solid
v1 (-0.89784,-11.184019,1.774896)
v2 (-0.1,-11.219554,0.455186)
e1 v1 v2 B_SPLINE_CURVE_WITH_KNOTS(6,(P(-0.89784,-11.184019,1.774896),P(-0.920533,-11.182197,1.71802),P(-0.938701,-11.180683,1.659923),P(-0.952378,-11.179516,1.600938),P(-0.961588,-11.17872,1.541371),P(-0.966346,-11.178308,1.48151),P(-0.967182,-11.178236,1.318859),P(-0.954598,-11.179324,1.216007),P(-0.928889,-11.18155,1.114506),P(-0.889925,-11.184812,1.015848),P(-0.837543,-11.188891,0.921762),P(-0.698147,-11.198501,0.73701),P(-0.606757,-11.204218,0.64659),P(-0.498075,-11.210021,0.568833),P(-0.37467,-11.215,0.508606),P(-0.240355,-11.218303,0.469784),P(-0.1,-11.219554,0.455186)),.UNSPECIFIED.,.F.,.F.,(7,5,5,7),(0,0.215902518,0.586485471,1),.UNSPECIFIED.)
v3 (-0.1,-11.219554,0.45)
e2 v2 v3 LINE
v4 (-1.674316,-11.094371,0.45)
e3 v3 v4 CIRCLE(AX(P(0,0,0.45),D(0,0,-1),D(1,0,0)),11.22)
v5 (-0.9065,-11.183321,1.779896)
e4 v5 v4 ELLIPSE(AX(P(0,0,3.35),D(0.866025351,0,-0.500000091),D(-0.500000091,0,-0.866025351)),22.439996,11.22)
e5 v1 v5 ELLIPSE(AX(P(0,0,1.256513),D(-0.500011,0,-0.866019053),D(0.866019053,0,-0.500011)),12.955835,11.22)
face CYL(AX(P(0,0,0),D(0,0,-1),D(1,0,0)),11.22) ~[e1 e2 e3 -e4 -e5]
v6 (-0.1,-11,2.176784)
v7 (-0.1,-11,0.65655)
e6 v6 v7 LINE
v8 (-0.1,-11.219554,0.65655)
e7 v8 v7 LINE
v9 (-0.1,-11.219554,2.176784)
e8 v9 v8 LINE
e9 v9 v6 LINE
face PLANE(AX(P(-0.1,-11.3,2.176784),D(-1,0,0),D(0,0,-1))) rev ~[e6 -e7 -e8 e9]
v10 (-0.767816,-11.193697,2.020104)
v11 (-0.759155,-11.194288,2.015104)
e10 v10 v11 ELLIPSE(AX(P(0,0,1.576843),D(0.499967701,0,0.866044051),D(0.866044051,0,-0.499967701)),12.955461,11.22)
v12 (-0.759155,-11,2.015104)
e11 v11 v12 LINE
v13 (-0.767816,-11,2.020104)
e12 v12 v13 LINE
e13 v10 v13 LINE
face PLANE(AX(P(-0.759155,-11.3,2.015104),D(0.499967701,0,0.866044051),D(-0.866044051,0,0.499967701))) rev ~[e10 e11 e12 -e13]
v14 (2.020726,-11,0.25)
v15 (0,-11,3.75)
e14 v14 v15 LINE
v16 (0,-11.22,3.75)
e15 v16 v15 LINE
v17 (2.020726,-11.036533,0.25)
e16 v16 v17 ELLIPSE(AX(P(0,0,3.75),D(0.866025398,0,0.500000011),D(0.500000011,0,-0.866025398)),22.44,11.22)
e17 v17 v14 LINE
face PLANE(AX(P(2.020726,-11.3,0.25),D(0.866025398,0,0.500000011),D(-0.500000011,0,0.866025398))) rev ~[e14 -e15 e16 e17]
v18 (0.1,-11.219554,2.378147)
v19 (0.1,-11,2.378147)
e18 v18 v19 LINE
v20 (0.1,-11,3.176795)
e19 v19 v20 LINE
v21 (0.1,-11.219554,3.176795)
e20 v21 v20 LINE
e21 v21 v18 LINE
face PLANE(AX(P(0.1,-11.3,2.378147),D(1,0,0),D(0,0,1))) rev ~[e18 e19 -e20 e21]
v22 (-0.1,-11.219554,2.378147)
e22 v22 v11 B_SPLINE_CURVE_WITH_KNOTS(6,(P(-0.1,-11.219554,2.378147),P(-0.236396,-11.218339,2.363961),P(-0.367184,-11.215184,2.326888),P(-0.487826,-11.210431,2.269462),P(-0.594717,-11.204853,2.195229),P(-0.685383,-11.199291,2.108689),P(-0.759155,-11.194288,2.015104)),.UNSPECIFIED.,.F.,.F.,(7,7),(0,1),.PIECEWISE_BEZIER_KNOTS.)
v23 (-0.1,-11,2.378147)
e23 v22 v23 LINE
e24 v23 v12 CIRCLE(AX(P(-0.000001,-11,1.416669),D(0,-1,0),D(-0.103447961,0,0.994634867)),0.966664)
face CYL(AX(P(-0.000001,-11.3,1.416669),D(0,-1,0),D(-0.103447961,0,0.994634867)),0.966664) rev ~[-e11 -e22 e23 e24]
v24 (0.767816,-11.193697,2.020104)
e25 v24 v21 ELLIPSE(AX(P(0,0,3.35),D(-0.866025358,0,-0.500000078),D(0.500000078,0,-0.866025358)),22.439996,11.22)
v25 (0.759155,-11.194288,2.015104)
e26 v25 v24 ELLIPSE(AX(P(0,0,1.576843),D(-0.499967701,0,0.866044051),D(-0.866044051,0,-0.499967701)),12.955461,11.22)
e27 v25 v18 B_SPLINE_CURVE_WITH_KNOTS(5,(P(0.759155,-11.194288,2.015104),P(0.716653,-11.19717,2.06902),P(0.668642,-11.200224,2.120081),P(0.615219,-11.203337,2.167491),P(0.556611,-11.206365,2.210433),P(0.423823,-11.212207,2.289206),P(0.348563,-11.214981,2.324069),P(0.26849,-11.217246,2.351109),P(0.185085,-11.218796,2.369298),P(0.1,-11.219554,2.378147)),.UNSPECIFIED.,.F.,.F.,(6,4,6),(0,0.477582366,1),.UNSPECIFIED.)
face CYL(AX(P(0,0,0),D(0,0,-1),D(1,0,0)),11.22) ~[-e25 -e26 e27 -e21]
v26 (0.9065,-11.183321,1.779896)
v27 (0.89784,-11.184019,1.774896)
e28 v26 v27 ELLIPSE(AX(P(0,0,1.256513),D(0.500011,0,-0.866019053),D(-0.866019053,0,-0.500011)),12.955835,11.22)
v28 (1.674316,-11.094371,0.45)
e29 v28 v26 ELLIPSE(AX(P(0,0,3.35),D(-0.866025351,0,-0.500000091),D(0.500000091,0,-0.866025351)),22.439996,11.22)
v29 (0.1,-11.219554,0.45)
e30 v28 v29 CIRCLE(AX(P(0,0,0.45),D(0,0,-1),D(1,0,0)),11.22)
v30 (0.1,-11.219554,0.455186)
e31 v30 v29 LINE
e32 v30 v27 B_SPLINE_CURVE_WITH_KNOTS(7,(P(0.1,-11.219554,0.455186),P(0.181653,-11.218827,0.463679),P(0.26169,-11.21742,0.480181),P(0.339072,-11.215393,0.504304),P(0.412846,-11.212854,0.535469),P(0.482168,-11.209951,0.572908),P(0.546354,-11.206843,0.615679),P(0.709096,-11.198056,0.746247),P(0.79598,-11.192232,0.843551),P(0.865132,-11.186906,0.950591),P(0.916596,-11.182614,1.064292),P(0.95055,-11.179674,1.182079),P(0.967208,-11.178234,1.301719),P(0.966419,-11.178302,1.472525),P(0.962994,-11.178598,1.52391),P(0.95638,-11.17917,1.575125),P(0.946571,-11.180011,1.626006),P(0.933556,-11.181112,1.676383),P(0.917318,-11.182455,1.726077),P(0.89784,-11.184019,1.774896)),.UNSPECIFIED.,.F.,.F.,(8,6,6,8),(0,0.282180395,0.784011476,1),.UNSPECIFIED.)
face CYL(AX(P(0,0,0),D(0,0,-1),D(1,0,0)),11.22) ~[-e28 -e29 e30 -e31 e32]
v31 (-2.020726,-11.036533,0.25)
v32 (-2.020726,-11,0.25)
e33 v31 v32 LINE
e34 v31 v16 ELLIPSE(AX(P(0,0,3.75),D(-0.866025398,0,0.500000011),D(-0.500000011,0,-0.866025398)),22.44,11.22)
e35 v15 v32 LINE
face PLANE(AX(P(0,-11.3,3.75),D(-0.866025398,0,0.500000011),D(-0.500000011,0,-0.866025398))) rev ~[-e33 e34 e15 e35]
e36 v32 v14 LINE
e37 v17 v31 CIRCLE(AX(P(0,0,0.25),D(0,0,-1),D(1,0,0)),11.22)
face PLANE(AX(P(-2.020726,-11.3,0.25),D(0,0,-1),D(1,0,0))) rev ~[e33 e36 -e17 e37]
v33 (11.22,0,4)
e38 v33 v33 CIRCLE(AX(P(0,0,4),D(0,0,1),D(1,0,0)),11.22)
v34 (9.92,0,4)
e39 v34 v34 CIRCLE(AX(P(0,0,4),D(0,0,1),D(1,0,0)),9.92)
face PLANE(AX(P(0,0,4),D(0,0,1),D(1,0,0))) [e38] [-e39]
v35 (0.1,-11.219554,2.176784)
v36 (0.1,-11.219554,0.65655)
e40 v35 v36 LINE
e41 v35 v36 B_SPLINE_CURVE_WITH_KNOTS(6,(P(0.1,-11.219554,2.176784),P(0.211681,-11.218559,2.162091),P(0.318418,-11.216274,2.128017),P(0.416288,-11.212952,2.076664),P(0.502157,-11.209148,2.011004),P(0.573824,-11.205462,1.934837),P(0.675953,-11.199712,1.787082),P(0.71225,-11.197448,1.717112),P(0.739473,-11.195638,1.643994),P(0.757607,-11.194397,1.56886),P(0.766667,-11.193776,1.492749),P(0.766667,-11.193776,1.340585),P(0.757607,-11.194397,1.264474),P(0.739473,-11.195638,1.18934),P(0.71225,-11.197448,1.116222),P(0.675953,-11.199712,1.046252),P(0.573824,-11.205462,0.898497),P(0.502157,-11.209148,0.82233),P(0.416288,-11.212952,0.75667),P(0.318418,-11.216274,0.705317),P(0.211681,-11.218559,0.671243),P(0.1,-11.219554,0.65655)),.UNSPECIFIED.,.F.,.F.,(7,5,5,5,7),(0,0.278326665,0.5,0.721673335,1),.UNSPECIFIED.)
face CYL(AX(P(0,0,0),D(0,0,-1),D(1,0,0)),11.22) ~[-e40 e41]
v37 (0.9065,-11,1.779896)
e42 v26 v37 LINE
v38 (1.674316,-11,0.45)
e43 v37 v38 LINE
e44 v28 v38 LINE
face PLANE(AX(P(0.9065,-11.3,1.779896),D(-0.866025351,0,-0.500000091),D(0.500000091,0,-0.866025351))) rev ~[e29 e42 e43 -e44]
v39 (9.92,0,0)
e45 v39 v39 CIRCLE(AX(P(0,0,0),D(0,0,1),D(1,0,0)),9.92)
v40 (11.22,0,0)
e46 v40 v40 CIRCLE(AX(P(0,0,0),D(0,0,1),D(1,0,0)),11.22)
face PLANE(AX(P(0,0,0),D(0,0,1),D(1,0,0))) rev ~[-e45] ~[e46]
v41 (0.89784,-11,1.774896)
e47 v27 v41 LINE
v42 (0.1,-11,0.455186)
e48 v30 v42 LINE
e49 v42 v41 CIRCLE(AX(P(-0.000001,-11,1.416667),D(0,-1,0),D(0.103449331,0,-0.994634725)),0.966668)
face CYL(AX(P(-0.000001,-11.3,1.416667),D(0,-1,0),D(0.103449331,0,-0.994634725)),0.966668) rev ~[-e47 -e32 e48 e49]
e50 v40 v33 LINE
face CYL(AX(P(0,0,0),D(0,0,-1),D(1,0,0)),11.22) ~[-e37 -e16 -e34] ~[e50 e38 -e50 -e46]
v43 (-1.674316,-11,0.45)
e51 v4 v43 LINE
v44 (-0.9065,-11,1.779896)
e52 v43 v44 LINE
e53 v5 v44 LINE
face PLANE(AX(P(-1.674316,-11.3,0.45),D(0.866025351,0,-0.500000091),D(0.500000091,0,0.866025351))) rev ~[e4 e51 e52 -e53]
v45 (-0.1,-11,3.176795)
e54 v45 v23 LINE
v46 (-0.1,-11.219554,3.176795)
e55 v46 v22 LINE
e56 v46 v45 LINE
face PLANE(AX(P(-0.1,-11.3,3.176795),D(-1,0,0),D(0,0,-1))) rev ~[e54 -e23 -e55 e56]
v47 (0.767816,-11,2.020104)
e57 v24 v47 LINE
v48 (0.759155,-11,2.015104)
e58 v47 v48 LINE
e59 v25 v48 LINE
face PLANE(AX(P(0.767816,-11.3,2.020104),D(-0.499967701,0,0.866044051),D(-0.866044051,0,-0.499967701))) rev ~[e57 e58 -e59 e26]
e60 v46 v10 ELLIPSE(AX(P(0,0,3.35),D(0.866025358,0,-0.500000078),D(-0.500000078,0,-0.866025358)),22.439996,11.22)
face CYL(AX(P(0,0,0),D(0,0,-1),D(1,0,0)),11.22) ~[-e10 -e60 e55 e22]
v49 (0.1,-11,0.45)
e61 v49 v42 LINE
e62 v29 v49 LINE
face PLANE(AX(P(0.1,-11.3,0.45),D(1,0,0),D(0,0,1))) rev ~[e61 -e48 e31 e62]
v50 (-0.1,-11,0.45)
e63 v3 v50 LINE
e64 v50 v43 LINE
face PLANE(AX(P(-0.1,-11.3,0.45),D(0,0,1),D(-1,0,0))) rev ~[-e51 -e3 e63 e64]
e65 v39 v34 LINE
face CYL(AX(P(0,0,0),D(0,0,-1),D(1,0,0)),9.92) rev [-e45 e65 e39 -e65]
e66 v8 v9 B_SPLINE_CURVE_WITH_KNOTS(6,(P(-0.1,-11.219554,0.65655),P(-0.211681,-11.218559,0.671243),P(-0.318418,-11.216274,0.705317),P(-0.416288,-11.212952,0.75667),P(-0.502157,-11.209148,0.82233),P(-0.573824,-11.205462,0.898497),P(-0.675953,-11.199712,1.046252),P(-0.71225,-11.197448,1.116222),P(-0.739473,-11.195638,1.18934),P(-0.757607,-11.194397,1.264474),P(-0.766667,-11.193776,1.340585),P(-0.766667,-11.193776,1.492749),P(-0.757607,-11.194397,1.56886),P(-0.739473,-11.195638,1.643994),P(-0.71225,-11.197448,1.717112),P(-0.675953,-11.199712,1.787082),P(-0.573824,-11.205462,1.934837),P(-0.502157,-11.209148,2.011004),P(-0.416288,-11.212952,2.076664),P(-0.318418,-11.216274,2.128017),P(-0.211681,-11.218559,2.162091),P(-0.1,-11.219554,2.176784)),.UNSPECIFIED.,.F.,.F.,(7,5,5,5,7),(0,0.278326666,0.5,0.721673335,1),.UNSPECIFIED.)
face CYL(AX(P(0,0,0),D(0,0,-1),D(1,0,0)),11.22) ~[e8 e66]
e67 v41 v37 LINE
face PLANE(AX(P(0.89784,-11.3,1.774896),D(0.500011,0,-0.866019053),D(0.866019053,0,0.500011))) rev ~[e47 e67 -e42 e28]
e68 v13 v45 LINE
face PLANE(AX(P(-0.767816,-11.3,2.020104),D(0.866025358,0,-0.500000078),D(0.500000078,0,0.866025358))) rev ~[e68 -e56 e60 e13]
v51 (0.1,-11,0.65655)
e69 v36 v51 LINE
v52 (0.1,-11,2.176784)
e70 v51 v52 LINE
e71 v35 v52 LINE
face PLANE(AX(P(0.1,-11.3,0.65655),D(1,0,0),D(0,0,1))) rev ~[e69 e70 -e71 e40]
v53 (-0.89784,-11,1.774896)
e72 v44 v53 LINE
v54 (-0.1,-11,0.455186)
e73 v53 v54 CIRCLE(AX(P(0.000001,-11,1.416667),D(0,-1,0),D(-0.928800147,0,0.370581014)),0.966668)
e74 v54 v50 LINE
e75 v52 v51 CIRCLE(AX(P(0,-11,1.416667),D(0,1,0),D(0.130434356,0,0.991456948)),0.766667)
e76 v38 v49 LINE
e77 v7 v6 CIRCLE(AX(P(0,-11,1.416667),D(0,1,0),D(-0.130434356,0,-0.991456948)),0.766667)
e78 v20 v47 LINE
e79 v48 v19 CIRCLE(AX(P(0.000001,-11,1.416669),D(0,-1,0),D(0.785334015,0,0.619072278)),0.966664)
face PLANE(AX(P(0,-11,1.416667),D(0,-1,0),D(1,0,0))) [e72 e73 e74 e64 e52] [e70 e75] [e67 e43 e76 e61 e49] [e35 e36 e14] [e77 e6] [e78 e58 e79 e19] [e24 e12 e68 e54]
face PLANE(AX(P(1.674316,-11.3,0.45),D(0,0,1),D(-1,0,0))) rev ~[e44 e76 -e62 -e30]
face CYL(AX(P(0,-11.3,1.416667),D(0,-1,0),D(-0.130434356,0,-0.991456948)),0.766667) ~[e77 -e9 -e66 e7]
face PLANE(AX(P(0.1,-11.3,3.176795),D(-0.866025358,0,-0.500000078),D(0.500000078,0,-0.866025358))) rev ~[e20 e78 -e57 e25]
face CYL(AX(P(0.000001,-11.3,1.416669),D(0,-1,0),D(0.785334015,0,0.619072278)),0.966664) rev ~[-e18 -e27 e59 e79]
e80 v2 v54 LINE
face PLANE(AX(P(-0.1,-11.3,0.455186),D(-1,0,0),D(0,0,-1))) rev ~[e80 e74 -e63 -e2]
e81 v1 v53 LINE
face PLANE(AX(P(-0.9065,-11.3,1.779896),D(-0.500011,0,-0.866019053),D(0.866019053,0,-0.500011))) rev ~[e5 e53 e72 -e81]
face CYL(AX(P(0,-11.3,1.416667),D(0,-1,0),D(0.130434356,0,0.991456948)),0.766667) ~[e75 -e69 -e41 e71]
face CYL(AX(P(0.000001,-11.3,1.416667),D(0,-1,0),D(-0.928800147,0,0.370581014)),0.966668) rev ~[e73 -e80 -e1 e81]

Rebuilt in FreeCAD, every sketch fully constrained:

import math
import FreeCAD as App
import Part
import Sketcher

V = App.Vector
Q = App.Units.Quantity

doc = App.newDocument("Part")
body = doc.addObject("PartDesign::Body", "Body")

sketch1 = body.newObject("Sketcher::SketchObject", "Sketch")
sketch1.AttachmentSupport = (doc.getObject("XY_Plane"), [""])
sketch1.MapMode = "FlatFace"
sketch1.addGeometry([
    Part.Circle(V(0, 0, 0), V(0, 0, 1), 11),
    Part.Circle(V(0, 0, 0), V(0, 0, 1), 10),
], False)
sketch1.addConstraint([
    Sketcher.Constraint("Coincident", 0, 3, -1, 1),
    Sketcher.Constraint("Coincident", 1, 3, -1, 1),
    Sketcher.Constraint("Diameter", 0, 22.44),
    Sketcher.Constraint("Diameter", 1, 19.84),
])
pad1 = body.newObject("PartDesign::Pad", "Pad")
pad1.Profile = sketch1
pad1.Length = 4

sketch2 = body.newObject("Sketcher::SketchObject", "Sketch001")
sketch2.AttachmentSupport = (doc.getObject("XZ_Plane"), [""])
sketch2.MapMode = "FlatFace"
sketch2.AttachmentOffset = App.Placement(V(0, 0, 11.3), App.Rotation())
sketch2.addGeometry([
    Part.LineSegment(V(0, 3.75, 0), V(-2.021, 0.25, 0)),
    Part.LineSegment(V(-2.021, 0.25, 0), V(2.021, 0.25, 0)),
    Part.LineSegment(V(2.021, 0.25, 0), V(0, 3.75, 0)),
    Part.LineSegment(V(-0.1, 0.455, 0), V(-0.1, 0.45, 0)),
    Part.LineSegment(V(-0.1, 0.45, 0), V(-1.674, 0.45, 0)),
    Part.LineSegment(V(-1.674, 0.45, 0), V(-0.906, 1.78, 0)),
    Part.LineSegment(V(-0.906, 1.78, 0), V(-0.898, 1.775, 0)),
    Part.ArcOfCircle(Part.Circle(V(0, 1.417, 0), V(0, 0, 1), 0.967), math.radians(158), math.radians(264)),
    Part.LineSegment(V(-0.1, 2.177, 0), V(-0.1, 0.657, 0)),
    Part.ArcOfCircle(Part.Circle(V(0, 1.417, 0), V(0, 0, 1), 0.767), math.radians(97), math.radians(263)),
    Part.LineSegment(V(0.898, 1.775, 0), V(0.906, 1.78, 0)),
    Part.LineSegment(V(0.906, 1.78, 0), V(1.674, 0.45, 0)),
    Part.LineSegment(V(1.674, 0.45, 0), V(0.1, 0.45, 0)),
    Part.LineSegment(V(0.1, 0.45, 0), V(0.1, 0.455, 0)),
    Part.ArcOfCircle(Part.Circle(V(0, 1.417, 0), V(0, 0, 1), 0.967), math.radians(-84), math.radians(22)),
    Part.LineSegment(V(0.1, 0.657, 0), V(0.1, 2.177, 0)),
    Part.ArcOfCircle(Part.Circle(V(0, 1.417, 0), V(0, 0, 1), 0.767), math.radians(-83), math.radians(83)),
    Part.LineSegment(V(-0.759, 2.015, 0), V(-0.768, 2.02, 0)),
    Part.LineSegment(V(-0.768, 2.02, 0), V(-0.1, 3.177, 0)),
    Part.LineSegment(V(-0.1, 3.177, 0), V(-0.1, 2.378, 0)),
    Part.ArcOfCircle(Part.Circle(V(0, 1.417, 0), V(0, 0, 1), 0.967), math.radians(96), math.radians(142)),
    Part.ArcOfCircle(Part.Circle(V(0, 1.417, 0), V(0, 0, 1), 0.967), math.radians(38), math.radians(84)),
    Part.LineSegment(V(0.1, 2.378, 0), V(0.1, 3.177, 0)),
    Part.LineSegment(V(0.1, 3.177, 0), V(0.768, 2.02, 0)),
    Part.LineSegment(V(0.768, 2.02, 0), V(0.759, 2.015, 0)),
], False)
sketch2.addConstraint([
    Sketcher.Constraint("Coincident", 0, 2, 1, 1),
    Sketcher.Constraint("Coincident", 1, 2, 2, 1),
    Sketcher.Constraint("Coincident", 2, 2, 0, 1),
    Sketcher.Constraint("Coincident", 3, 2, 4, 1),
    Sketcher.Constraint("Coincident", 4, 2, 5, 1),
    Sketcher.Constraint("Coincident", 5, 2, 6, 1),
    Sketcher.Constraint("Coincident", 6, 2, 7, 1),
    Sketcher.Constraint("Coincident", 7, 2, 3, 1),
    Sketcher.Constraint("Coincident", 8, 1, 9, 1),
    Sketcher.Constraint("Coincident", 9, 2, 8, 2),
    Sketcher.Constraint("Coincident", 10, 2, 11, 1),
    Sketcher.Constraint("Coincident", 11, 2, 12, 1),
    Sketcher.Constraint("Coincident", 12, 2, 13, 1),
    Sketcher.Constraint("Coincident", 13, 2, 14, 1),
    Sketcher.Constraint("Coincident", 14, 2, 10, 1),
    Sketcher.Constraint("Coincident", 15, 1, 16, 1),
    Sketcher.Constraint("Coincident", 16, 2, 15, 2),
    Sketcher.Constraint("Coincident", 17, 2, 18, 1),
    Sketcher.Constraint("Coincident", 18, 2, 19, 1),
    Sketcher.Constraint("Coincident", 19, 2, 20, 1),
    Sketcher.Constraint("Coincident", 20, 2, 17, 1),
    Sketcher.Constraint("Coincident", 21, 2, 22, 1),
    Sketcher.Constraint("Coincident", 22, 2, 23, 1),
    Sketcher.Constraint("Coincident", 23, 2, 24, 1),
    Sketcher.Constraint("Coincident", 24, 2, 21, 1),
    Sketcher.Constraint("Horizontal", 1),
    Sketcher.Constraint("Vertical", 3),
    Sketcher.Constraint("Horizontal", 4),
    Sketcher.Constraint("Vertical", 8),
    Sketcher.Constraint("Horizontal", 12),
    Sketcher.Constraint("Vertical", 13),
    Sketcher.Constraint("Vertical", 15),
    Sketcher.Constraint("Vertical", 19),
    Sketcher.Constraint("Vertical", 22),
    Sketcher.Constraint("Coincident", 9, 3, 7, 3),
    Sketcher.Constraint("Coincident", 14, 3, 7, 3),
    Sketcher.Constraint("Coincident", 16, 3, 7, 3),
    Sketcher.Constraint("Coincident", 20, 3, 7, 3),
    Sketcher.Constraint("Coincident", 21, 3, 7, 3),
    Sketcher.Constraint("Equal", 7, 14),
    Sketcher.Constraint("Equal", 9, 16),
    Sketcher.Constraint("Equal", 20, 21),
    Sketcher.Constraint("Symmetric", 5, 2, 10, 2, -2),
    Sketcher.Constraint("Symmetric", 4, 2, 11, 2, -2),
    Sketcher.Constraint("Symmetric", 7, 2, 13, 2, -2),
    Sketcher.Constraint("Symmetric", 18, 2, 22, 2, -2),
    Sketcher.Constraint("Symmetric", 17, 2, 23, 2, -2),
    Sketcher.Constraint("PointOnObject", 2, 2, -2),
    Sketcher.Constraint("Parallel", 0, 5),
    Sketcher.Constraint("Parallel", 2, 11),
    Sketcher.Constraint("Parallel", 5, 18),
    Sketcher.Constraint("Horizontal", 6, 2, 14, 2),
    Sketcher.Constraint("Horizontal", 9, 2, 15, 1),
    Sketcher.Constraint("Horizontal", 20, 2, 24, 2),
    Sketcher.Constraint("Vertical", 7, 2, 8, 1),
    Sketcher.Constraint("Vertical", 9, 2, 18, 2),
    Sketcher.Constraint("Equal", 10, 17),
    Sketcher.Constraint("Angle", 0, Q("-120.000001 deg")),
    Sketcher.Constraint("DistanceX", 3, 2, -1, 1, 0.1),
    Sketcher.Constraint("DistanceY", 0, 2, 4, 2, 0.2),
    Sketcher.Constraint("Distance", 6, 0.01),
    Sketcher.Constraint("DistanceY", -1, 1, 0, 2, 0.25),
    Sketcher.Constraint("DistanceY", -1, 1, 2, 2, 3.75),
    Sketcher.Constraint("Radius", 7, 0.966668),
    Sketcher.Constraint("Radius", 9, 0.766667),
    Sketcher.Constraint("Radius", 20, 0.966664),
    Sketcher.Constraint("DistanceY", 6, 2, 5, 2, 0.005),
    Sketcher.Constraint("DistanceY", 20, 2, 17, 2, 0.005),
    Sketcher.Constraint("DistanceY", 19, 2, 19, 1, 0.798648),
    Sketcher.Constraint("DistanceX", 5, 2, -1, 1, 0.9065),
    Sketcher.Constraint("Distance", 5, 1.535632),
])
pocket1 = body.newObject("PartDesign::Pocket", "Pocket")
pocket1.Profile = sketch2
pocket1.Length = 0.3

doc.recompute()
